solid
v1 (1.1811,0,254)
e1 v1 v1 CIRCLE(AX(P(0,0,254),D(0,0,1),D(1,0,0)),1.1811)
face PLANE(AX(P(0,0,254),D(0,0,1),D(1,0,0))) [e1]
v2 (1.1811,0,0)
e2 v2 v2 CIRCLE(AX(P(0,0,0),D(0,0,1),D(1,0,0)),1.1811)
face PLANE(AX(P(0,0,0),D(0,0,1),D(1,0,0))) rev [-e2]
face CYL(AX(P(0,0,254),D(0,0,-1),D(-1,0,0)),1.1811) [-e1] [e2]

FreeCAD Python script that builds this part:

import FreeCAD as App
import Part
import Sketcher
Q = App.Units.Quantity

doc = App.newDocument("Part")
body = doc.addObject("PartDesign::Body", "Body")

sketch1 = body.newObject("Sketcher::SketchObject", "Sketch")
sketch1.AttachmentSupport = (doc.getObject("XY_Plane"), [""])
sketch1.MapMode = "FlatFace"
sketch1.addGeometry(Part.Circle(App.Vector(0, 0, 0), App.Vector(0, 0, 1), 1.1811), False)
sketch1.addConstraint(Sketcher.Constraint("Coincident", 0, 3, -1, 1))
sketch1.addConstraint(Sketcher.Constraint("Diameter", 0, Q("0.093 in")))
pad1 = body.newObject("PartDesign::Pad", "Pad")
pad1.Profile = sketch1
pad1.Length = Q("10 in")

doc.recompute()
